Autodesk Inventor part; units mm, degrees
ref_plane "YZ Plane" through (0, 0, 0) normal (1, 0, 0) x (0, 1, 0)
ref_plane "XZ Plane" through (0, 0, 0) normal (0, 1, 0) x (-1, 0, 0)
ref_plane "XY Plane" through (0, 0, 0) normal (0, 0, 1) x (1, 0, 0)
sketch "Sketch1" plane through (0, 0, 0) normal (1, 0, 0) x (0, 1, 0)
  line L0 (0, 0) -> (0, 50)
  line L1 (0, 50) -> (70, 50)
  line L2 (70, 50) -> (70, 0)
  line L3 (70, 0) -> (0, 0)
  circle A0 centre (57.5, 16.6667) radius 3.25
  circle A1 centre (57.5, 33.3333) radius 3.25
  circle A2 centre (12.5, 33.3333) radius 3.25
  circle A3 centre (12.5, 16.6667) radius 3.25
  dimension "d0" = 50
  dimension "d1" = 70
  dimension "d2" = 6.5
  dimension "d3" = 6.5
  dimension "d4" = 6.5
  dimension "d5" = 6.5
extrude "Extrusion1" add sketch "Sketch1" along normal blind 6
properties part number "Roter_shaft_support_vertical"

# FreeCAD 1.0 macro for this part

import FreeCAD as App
import Part
import Sketcher
Q = App.Units.Quantity

doc = App.newDocument("Part")
body = doc.addObject("PartDesign::Body", "Body")

sketch1 = body.newObject("Sketcher::SketchObject", "Sketch")
sketch1.AttachmentSupport = (doc.getObject("YZ_Plane"), [""])
sketch1.MapMode = "FlatFace"
sketch1.addGeometry([
    Part.LineSegment(App.Vector(0, 50, 0), App.Vector(0, 0, 0)),
    Part.LineSegment(App.Vector(0, 0, 0), App.Vector(70, 0, 0)),
    Part.LineSegment(App.Vector(70, 0, 0), App.Vector(70, 50, 0)),
    Part.LineSegment(App.Vector(70, 50, 0), App.Vector(0, 50, 0)),
    Part.Circle(App.Vector(12.5, 16.7, 0), App.Vector(0, 0, 1), 3.2),
    Part.Circle(App.Vector(57.5, 16.7, 0), App.Vector(0, 0, 1), 3.2),
    Part.Circle(App.Vector(12.5, 33.3, 0), App.Vector(0, 0, 1), 3.2),
    Part.Circle(App.Vector(57.5, 33.3, 0), App.Vector(0, 0, 1), 3.2),
], False)
sketch1.addConstraint([
    Sketcher.Constraint("Coincident", 0, 2, 1, 1),
    Sketcher.Constraint("Coincident", 1, 2, 2, 1),
    Sketcher.Constraint("Coincident", 2, 2, 3, 1),
    Sketcher.Constraint("Coincident", 3, 2, 0, 1),
    Sketcher.Constraint("Vertical", 0),
    Sketcher.Constraint("Horizontal", 1),
    Sketcher.Constraint("Vertical", 2),
    Sketcher.Constraint("Horizontal", 3),
    Sketcher.Constraint("Coincident", 0, 2, -1, 1),
    Sketcher.Constraint("Equal", 4, 5),
    Sketcher.Constraint("Equal", 5, 6),
    Sketcher.Constraint("Equal", 6, 7),
    Sketcher.Constraint("Horizontal", 4, 3, 5, 3),
    Sketcher.Constraint("Horizontal", 6, 3, 7, 3),
    Sketcher.Constraint("Vertical", 4, 3, 6, 3),
    Sketcher.Constraint("Vertical", 5, 3, 7, 3),
    Sketcher.Constraint("Diameter", 4, Q("6.5 mm")),
    Sketcher.Constraint("DistanceX", 1, 1, 1, 2, Q("70 mm")),
    Sketcher.Constraint("DistanceY", 0, 2, 0, 1, Q("50 mm")),
    Sketcher.Constraint("DistanceX", 4, 3, 5, 3, Q("45 mm")),
    Sketcher.Constraint("DistanceX", -1, 1, 4, 3, Q("12.5 mm")),
    Sketcher.Constraint("DistanceY", -1, 1, 4, 3, Q("16.6667 mm")),
    Sketcher.Constraint("DistanceY", -1, 1, 6, 3, Q("33.3333 mm")),
])
pad1 = body.newObject("PartDesign::Pad", "Pad")
pad1.Profile = sketch1
pad1.Length = 6

doc.recompute()
